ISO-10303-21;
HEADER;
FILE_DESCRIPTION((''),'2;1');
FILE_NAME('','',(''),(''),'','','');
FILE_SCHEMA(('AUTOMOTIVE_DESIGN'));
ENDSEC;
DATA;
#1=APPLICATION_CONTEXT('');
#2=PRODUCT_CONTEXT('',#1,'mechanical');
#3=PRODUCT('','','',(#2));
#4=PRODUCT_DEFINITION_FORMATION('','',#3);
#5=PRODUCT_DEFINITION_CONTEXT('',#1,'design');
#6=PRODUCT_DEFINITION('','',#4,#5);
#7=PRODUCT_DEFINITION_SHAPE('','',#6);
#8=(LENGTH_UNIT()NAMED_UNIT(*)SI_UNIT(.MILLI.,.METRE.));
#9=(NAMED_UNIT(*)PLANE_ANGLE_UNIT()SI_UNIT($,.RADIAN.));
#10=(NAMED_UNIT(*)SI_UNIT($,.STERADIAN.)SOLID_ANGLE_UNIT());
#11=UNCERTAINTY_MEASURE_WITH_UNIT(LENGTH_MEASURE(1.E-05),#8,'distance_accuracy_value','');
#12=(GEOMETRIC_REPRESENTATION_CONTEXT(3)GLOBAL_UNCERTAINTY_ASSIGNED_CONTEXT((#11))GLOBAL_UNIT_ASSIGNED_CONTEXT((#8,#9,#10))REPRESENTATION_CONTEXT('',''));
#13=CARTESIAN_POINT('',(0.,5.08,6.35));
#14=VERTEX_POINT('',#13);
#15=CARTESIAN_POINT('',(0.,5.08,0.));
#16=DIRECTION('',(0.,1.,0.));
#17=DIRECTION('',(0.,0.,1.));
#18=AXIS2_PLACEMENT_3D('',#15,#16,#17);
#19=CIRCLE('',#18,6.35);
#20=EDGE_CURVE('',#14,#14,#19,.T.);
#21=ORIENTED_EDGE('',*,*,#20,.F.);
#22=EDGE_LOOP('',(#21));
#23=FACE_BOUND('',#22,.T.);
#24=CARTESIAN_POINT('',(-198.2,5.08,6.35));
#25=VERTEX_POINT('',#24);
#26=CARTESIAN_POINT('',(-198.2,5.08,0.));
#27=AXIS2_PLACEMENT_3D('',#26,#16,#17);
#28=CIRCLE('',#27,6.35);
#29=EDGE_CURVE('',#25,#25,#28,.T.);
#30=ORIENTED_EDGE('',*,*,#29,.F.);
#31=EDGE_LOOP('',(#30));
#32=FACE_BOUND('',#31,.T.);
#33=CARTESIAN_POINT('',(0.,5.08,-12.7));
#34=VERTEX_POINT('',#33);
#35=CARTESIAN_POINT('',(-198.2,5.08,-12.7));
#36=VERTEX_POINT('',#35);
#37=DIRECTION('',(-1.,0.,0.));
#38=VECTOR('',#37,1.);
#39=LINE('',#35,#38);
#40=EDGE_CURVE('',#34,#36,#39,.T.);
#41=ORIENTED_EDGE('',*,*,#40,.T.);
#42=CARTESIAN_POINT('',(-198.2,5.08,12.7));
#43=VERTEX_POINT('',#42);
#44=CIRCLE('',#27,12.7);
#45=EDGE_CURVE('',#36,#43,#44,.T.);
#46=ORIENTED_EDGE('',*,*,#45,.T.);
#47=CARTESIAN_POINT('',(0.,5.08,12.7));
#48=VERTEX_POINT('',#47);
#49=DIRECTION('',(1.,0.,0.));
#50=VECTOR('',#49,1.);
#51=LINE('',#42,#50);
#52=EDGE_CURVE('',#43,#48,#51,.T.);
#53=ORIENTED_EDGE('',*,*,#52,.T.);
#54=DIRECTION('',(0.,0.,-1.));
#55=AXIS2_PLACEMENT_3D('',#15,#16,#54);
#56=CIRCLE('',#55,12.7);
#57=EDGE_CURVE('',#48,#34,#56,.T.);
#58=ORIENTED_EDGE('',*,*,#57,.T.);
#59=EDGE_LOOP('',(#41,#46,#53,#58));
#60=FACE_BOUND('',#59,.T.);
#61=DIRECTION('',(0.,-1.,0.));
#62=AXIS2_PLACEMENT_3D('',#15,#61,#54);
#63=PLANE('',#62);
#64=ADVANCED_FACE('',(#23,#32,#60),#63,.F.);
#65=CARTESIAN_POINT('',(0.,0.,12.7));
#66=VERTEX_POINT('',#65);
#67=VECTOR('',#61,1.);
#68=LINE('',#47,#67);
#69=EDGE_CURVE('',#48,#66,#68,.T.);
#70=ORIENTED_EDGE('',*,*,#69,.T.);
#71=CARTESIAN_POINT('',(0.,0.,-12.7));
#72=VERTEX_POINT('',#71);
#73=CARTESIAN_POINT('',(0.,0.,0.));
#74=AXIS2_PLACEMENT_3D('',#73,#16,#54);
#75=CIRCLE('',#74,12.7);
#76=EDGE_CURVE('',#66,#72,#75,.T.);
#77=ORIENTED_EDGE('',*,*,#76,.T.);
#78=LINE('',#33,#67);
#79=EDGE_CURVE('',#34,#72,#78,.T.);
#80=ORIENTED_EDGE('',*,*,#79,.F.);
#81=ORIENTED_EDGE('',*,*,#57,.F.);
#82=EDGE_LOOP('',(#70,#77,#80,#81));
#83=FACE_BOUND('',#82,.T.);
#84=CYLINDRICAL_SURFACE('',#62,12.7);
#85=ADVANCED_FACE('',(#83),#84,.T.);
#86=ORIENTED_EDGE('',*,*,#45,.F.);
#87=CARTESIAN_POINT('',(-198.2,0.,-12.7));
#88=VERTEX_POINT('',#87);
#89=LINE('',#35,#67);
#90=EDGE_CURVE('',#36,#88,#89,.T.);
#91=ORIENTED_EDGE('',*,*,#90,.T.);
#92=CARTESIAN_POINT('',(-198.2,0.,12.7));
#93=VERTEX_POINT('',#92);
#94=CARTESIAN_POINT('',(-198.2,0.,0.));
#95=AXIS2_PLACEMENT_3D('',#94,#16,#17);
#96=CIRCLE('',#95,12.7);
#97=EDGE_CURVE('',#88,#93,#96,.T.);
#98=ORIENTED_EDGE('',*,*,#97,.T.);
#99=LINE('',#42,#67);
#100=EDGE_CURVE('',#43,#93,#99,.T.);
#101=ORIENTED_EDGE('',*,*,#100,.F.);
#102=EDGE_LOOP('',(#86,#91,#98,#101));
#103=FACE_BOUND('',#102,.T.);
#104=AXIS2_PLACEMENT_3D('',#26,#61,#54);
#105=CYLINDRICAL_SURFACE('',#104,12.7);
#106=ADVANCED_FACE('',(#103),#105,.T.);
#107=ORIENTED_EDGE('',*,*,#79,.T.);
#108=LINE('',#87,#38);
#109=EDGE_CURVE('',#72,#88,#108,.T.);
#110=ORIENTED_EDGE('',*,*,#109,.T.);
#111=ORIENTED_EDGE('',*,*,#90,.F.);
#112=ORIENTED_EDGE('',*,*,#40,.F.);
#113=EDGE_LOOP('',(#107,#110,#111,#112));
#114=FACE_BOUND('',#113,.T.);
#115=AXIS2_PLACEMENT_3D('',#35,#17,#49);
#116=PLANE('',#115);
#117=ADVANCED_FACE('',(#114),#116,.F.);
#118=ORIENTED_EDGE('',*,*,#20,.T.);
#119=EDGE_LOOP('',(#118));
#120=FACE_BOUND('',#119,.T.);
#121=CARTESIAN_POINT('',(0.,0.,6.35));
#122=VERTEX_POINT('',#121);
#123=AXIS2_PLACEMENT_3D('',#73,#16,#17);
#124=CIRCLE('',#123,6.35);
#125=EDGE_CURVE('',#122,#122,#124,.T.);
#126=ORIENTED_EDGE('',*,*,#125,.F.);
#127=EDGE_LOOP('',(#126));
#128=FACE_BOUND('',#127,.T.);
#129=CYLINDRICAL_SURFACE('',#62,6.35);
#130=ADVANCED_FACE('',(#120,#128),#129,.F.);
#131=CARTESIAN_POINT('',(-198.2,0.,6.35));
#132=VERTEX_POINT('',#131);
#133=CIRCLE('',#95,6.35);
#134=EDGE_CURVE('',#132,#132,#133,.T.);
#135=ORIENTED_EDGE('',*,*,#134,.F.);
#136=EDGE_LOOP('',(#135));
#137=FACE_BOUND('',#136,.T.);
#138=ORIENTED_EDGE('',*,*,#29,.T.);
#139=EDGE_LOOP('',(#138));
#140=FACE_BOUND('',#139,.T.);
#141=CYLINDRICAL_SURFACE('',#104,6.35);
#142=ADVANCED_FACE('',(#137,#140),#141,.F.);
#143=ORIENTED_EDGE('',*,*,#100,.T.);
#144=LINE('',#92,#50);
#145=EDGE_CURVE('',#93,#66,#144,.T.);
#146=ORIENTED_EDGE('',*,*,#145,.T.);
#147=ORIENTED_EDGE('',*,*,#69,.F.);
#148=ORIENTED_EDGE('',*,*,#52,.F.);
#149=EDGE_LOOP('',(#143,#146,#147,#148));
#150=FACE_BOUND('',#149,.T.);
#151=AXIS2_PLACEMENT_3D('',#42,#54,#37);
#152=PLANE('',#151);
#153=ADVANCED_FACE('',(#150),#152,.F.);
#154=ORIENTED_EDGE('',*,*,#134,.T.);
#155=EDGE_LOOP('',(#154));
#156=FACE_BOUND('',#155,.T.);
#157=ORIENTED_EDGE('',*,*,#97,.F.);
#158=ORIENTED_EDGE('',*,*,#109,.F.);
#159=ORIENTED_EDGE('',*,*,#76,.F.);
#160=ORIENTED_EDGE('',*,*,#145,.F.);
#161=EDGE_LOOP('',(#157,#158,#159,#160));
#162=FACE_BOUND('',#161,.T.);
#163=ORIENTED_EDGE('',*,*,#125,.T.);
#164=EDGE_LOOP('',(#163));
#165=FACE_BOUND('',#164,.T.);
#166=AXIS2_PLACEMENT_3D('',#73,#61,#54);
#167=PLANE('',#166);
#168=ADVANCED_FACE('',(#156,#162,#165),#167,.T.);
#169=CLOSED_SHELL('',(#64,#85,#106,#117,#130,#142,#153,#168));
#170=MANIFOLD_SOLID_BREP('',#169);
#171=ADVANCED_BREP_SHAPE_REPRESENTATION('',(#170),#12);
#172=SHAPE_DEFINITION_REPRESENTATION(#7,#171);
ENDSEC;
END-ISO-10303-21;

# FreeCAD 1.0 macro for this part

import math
import FreeCAD as App
import Part
import Sketcher
Q = App.Units.Quantity

doc = App.newDocument("Part")
body = doc.addObject("PartDesign::Body", "Body")

# Sketch on XZ plane
sketch1 = body.newObject("Sketcher::SketchObject", "Sketch")
sketch1.AttachmentSupport = (doc.getObject("XZ_Plane"), [""])
sketch1.MapMode = "FlatFace"
sketch1.addGeometry(Part.LineSegment(App.Vector(0, -13, 0), App.Vector(-198, -13, 0)), False)
sketch1.addGeometry(Part.ArcOfCircle(Part.Circle(App.Vector(-198, 0, 0), App.Vector(0, 0, 1), 13), math.radians(90), math.radians(270)), False)
sketch1.addGeometry(Part.LineSegment(App.Vector(-198, 13, 0), App.Vector(0, 13, 0)), False)
sketch1.addGeometry(Part.ArcOfCircle(Part.Circle(App.Vector(0, 0, 0), App.Vector(0, 0, 1), 13), math.radians(-90), math.radians(90)), False)
sketch1.addGeometry(Part.Circle(App.Vector(0, 0, 0), App.Vector(0, 0, 1), 6), False)
sketch1.addGeometry(Part.Circle(App.Vector(-198, 0, 0), App.Vector(0, 0, 1), 6), False)
sketch1.addConstraint(Sketcher.Constraint("Tangent", 0, 2, 1, 2))
sketch1.addConstraint(Sketcher.Constraint("Tangent", 1, 1, 2, 1))
sketch1.addConstraint(Sketcher.Constraint("Tangent", 2, 2, 3, 2))
sketch1.addConstraint(Sketcher.Constraint("Tangent", 3, 1, 0, 1))
sketch1.addConstraint(Sketcher.Constraint("Horizontal", 0))
sketch1.addConstraint(Sketcher.Constraint("Horizontal", 2))
sketch1.addConstraint(Sketcher.Constraint("Coincident", 3, 3, -1, 1))
sketch1.addConstraint(Sketcher.Constraint("Coincident", 4, 3, -1, 1))
sketch1.addConstraint(Sketcher.Constraint("Coincident", 5, 3, 1, 3))
sketch1.addConstraint(Sketcher.Constraint("Equal", 4, 5))
sketch1.addConstraint(Sketcher.Constraint("Diameter", 4, Q("0.5 in")))
sketch1.addConstraint(Sketcher.Constraint("Radius", 1, Q("0.5 in")))
sketch1.addConstraint(Sketcher.Constraint("DistanceX", 0, 2, 0, 1, 198.2))
pad1 = body.newObject("PartDesign::Pad", "Pad")
pad1.Profile = sketch1
pad1.Length = Q("0.2 in")
pad1.Reversed = True

doc.recompute()
